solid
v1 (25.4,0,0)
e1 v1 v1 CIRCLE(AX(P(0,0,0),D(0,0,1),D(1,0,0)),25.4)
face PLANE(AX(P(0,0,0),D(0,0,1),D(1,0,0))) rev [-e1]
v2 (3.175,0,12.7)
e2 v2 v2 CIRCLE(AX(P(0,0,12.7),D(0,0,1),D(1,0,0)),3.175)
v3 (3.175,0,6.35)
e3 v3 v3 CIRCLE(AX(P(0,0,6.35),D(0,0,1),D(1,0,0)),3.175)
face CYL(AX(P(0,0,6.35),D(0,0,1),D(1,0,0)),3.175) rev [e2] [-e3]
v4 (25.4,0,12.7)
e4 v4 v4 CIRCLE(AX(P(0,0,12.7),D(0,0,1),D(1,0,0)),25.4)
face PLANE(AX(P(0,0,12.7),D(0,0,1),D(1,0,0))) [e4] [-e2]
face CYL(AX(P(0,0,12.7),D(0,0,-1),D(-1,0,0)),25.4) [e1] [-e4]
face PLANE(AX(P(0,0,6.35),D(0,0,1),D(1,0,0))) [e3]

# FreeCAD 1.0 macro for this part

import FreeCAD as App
import Part
import Sketcher

V = App.Vector
Q = App.Units.Quantity

doc = App.newDocument("Part")
params = doc.addObject("Spreadsheet::Sheet", "Params")
for row, (alias, value) in enumerate([
    ("sketch1_diameter", "2 in"),
    ("pad1_length", "0.5 in"),
    ("sketch2_diameter", "0.25 in"),
    ("pocket1_length", "0.25 in"),
], start=1):
    params.set(f"A{row}", alias)
    params.set(f"B{row}", "=" + value)
    params.setAlias(f"B{row}", alias)

body = doc.addObject("PartDesign::Body", "Body")

# Sketch on XY plane
sketch1 = body.newObject("Sketcher::SketchObject", "Sketch")
sketch1.AttachmentSupport = (doc.getObject("XY_Plane"), [""])
sketch1.MapMode = "FlatFace"
sketch1.addGeometry(Part.Circle(V(0, 0, 0), V(0, 0, 1), 25.4), False)
sketch1.addConstraint([
    Sketcher.Constraint("Coincident", 0, 3, -1, 1),
    Sketcher.Constraint("Diameter", 0, Q("2 in")),
])
sketch1.setExpression("Constraints[1]", "Params.sketch1_diameter")
pad1 = body.newObject("PartDesign::Pad", "Pad")
pad1.Profile = sketch1
pad1.setExpression("Length", "Params.pad1_length")

# Sketch on XY plane
sketch2 = body.newObject("Sketcher::SketchObject", "Sketch001")
sketch2.AttachmentSupport = (doc.getObject("XY_Plane"), [""])
sketch2.MapMode = "FlatFace"
sketch2.AttachmentOffset = App.Placement(V(0, 0, 0.5 * 25.4), App.Rotation())
sketch2.addGeometry(Part.Circle(V(0, 0, 0), V(0, 0, 1), 3.175), False)
sketch2.addConstraint([
    Sketcher.Constraint("Coincident", 0, 3, -1, 1),
    Sketcher.Constraint("Diameter", 0, Q("0.25 in")),
])
sketch2.setExpression("Constraints[1]", "Params.sketch2_diameter")
pocket1 = body.newObject("PartDesign::Pocket", "Pocket")
pocket1.Profile = sketch2
pocket1.setExpression("Length", "Params.pocket1_length")

doc.recompute()
